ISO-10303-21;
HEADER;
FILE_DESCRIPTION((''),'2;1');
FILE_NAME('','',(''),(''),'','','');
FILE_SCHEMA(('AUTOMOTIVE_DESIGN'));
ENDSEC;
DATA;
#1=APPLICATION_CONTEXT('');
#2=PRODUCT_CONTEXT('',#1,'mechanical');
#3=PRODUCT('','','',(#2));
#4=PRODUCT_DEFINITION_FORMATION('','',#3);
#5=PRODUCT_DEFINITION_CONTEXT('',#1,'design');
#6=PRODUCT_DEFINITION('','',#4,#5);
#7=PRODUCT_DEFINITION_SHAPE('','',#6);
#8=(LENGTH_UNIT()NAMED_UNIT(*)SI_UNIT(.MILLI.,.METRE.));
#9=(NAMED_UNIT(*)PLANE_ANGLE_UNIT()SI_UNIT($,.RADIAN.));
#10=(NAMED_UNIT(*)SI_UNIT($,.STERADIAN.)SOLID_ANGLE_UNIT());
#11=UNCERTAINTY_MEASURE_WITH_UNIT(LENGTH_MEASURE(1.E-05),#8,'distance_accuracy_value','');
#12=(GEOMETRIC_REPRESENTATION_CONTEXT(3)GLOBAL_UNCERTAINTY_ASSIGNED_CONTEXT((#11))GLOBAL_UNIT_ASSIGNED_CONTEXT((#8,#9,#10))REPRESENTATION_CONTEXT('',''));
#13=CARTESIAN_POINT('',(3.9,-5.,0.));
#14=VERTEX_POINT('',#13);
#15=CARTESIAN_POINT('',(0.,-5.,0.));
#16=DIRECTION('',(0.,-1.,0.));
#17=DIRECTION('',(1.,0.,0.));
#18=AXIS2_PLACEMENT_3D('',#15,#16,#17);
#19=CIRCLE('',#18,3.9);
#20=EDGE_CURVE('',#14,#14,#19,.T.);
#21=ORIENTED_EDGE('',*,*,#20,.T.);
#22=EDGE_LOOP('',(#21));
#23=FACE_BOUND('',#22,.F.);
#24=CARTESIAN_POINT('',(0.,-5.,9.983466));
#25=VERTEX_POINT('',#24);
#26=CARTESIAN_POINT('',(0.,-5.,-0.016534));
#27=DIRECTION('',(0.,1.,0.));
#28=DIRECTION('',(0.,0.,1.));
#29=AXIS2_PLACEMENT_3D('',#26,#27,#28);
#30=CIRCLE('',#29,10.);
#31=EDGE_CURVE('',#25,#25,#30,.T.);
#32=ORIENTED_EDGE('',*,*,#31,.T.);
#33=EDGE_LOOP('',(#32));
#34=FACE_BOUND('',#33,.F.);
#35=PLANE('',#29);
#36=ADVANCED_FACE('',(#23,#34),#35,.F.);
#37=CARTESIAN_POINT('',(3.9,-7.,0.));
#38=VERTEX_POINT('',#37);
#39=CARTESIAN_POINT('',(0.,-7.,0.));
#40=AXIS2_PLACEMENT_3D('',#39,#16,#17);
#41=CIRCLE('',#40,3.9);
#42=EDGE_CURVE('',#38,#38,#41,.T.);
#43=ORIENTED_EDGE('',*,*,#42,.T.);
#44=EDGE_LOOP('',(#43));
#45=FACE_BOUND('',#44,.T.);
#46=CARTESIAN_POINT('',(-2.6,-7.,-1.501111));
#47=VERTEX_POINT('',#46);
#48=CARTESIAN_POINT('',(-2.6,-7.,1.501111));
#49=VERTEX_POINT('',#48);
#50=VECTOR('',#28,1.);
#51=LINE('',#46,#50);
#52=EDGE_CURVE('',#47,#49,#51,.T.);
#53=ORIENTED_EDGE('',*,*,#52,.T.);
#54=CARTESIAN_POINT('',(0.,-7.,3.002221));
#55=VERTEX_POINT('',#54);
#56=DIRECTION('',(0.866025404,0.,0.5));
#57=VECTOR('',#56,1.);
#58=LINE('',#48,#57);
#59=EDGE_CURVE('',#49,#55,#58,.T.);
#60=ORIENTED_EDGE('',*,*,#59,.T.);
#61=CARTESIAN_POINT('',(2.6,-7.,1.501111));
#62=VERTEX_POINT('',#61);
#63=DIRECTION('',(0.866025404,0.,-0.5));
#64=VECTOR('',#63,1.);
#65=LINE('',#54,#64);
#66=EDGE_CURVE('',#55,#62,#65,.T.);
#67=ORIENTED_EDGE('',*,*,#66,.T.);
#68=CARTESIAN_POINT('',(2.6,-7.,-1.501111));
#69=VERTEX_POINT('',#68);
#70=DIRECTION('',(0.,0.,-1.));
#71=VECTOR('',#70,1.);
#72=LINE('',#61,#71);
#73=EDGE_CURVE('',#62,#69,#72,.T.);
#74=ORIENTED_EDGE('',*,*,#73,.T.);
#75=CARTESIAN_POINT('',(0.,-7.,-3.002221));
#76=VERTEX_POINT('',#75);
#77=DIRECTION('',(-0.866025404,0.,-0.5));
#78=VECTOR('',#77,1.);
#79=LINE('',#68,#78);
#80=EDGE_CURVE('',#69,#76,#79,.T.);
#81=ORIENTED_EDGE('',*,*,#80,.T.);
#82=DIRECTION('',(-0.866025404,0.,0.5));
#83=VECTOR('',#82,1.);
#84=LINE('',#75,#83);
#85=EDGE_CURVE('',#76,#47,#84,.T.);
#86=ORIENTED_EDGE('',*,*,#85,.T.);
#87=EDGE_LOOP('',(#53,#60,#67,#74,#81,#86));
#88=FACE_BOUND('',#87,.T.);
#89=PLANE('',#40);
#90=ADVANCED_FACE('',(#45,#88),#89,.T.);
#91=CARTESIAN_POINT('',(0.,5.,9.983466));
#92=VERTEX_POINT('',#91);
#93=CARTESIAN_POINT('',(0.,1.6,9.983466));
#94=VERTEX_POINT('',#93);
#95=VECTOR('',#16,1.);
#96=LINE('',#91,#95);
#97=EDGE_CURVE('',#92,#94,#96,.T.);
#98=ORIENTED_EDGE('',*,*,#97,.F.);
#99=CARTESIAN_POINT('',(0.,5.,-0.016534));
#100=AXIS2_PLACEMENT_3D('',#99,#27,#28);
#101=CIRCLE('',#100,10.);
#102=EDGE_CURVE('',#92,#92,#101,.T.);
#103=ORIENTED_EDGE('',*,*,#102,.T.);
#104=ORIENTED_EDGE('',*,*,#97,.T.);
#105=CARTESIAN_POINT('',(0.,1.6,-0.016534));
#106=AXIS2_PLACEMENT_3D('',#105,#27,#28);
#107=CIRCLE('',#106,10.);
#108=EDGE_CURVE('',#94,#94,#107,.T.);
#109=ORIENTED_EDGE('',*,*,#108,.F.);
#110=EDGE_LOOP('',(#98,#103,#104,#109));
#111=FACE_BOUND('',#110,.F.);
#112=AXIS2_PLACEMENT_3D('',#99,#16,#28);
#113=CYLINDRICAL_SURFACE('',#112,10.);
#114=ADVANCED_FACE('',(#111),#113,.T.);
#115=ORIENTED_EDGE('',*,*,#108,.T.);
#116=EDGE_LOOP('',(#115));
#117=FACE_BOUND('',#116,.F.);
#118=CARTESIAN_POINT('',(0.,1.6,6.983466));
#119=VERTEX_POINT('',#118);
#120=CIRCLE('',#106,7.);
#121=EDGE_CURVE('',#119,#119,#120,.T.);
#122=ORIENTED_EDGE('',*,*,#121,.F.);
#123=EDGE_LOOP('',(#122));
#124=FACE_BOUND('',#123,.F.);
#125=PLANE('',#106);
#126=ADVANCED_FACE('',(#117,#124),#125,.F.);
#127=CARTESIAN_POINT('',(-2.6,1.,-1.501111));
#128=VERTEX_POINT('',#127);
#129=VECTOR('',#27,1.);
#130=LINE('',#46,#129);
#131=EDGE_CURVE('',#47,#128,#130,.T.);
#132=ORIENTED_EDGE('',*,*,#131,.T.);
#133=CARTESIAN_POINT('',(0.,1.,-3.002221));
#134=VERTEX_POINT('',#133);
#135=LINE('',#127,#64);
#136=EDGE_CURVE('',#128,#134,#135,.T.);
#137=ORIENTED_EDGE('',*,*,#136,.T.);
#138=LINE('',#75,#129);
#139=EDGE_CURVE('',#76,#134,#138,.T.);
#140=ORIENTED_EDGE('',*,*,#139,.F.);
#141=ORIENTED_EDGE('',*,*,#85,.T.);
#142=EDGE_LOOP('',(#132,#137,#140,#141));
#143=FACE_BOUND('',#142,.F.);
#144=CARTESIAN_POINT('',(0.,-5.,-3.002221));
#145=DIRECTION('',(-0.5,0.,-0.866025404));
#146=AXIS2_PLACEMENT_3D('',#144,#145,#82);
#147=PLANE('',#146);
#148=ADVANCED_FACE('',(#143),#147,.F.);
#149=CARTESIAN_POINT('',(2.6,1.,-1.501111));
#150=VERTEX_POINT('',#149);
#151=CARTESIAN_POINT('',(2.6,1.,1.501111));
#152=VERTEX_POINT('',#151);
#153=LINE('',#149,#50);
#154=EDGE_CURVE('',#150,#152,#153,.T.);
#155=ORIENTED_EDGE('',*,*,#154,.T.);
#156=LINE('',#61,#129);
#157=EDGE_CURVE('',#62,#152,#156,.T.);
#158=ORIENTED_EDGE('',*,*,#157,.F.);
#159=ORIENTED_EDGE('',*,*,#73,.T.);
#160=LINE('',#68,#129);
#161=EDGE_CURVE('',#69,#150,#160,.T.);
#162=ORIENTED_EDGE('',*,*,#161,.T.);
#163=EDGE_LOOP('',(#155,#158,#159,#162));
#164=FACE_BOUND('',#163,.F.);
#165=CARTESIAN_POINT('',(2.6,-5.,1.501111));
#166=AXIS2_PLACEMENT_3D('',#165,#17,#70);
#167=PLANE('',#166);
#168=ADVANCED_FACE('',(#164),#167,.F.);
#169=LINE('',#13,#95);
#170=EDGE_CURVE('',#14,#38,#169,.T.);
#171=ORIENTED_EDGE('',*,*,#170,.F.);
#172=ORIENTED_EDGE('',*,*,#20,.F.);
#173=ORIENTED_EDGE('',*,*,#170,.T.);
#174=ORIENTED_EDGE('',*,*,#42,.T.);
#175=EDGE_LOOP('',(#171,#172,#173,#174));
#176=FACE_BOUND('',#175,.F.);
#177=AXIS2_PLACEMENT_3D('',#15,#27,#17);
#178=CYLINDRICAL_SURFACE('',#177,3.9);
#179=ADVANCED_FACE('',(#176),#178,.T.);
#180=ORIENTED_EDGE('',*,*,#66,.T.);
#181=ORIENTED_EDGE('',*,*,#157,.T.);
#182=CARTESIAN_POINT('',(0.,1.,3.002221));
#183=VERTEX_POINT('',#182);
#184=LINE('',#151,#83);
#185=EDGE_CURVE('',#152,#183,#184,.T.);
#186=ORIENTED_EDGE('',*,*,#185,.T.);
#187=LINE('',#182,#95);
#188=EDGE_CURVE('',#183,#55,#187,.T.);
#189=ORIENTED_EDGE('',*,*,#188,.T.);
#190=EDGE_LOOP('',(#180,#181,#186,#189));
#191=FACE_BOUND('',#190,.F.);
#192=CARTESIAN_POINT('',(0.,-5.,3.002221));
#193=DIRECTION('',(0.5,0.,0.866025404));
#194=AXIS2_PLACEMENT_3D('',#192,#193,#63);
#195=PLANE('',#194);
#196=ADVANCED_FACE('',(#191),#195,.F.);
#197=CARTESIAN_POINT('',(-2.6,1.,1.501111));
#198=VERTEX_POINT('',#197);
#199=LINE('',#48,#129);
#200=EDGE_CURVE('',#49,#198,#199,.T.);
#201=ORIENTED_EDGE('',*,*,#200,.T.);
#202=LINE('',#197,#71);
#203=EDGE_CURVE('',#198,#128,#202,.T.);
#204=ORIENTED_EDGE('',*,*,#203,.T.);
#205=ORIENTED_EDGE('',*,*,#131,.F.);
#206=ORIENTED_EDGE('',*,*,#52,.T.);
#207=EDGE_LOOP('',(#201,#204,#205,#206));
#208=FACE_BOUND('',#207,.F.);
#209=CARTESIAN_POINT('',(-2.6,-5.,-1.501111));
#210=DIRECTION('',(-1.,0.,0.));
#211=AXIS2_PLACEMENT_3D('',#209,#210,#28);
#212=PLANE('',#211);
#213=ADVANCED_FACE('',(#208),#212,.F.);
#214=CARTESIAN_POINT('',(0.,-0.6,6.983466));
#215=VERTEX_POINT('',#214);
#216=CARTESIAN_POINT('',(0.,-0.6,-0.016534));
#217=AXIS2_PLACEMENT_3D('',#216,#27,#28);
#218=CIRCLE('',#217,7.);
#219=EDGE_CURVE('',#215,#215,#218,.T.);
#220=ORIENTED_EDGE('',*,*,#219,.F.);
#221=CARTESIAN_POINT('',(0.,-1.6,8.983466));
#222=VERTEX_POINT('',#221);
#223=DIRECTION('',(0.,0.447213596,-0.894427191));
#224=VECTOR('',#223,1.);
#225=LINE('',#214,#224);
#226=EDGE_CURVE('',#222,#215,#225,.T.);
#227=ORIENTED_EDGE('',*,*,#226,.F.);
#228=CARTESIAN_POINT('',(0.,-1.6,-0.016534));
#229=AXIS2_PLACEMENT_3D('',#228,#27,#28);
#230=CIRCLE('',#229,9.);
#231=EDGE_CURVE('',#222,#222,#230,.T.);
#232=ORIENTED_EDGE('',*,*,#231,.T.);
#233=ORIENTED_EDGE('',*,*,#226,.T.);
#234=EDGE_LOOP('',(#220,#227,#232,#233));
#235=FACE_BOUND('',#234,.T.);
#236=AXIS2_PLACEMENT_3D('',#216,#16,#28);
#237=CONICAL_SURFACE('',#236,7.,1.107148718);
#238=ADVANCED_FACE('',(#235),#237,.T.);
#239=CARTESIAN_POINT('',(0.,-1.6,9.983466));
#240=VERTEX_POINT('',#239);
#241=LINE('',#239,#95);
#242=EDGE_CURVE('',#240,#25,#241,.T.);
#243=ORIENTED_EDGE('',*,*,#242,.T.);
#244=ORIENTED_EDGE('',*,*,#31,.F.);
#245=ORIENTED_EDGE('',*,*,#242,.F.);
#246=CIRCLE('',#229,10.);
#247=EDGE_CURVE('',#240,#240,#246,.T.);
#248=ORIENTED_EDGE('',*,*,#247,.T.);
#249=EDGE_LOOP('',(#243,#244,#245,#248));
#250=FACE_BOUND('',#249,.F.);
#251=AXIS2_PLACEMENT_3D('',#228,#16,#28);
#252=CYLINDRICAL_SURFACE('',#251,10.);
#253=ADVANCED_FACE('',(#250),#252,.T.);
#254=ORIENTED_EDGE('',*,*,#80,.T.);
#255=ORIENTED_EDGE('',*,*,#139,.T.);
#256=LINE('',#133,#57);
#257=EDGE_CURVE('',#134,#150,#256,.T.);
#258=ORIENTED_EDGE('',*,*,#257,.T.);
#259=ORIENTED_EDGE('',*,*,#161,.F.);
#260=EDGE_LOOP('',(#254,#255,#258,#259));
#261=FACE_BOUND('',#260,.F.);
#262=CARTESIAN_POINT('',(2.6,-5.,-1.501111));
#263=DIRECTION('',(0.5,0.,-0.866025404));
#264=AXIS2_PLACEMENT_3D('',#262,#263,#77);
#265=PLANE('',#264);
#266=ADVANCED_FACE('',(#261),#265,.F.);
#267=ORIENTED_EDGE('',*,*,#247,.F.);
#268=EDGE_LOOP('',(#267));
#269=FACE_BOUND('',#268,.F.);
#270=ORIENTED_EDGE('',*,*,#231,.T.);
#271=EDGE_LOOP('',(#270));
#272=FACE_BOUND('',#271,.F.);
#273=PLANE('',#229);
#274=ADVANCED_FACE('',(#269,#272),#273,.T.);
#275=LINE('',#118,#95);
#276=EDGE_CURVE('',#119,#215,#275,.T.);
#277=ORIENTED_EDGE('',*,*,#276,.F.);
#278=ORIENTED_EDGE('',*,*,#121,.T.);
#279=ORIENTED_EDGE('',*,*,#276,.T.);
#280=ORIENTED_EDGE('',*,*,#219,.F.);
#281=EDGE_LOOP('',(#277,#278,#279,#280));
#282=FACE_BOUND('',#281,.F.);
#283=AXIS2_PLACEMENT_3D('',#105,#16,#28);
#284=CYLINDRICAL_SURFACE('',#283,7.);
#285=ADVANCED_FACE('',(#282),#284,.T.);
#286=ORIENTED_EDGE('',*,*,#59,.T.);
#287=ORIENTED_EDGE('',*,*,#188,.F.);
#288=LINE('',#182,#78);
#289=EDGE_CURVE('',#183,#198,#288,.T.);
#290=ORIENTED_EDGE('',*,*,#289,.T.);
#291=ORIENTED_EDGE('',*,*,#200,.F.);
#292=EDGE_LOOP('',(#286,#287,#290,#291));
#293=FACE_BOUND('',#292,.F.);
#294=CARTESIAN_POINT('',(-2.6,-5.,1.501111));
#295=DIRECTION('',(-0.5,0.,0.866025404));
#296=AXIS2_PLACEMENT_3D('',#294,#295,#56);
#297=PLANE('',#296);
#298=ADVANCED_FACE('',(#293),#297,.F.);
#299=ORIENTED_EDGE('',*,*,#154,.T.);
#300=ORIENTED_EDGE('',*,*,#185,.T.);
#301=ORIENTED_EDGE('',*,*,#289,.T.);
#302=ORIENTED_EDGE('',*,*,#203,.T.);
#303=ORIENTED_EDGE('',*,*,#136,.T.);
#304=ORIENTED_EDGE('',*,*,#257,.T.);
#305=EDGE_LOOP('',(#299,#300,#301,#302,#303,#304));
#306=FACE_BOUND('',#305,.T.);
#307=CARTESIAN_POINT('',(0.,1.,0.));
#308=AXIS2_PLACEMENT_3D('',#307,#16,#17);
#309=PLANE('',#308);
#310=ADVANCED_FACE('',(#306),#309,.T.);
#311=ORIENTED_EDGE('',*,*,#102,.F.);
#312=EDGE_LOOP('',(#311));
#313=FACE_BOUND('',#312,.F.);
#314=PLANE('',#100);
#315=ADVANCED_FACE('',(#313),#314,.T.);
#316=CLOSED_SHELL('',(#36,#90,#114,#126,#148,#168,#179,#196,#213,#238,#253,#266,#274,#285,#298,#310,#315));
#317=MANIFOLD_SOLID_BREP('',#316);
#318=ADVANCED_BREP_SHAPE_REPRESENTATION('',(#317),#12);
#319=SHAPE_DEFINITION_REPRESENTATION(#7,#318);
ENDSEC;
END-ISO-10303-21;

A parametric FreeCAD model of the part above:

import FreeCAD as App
import Part
import Sketcher
Q = App.Units.Quantity


def edges_at(feature, points):
    """Names of the edges that pass closest to the given points."""
    edges = feature.Shape.Edges
    near = lambda p: min(range(len(edges)), key=lambda i: edges[i].distToShape(Part.Vertex(*p))[0])
    return sorted({f"Edge{near(p) + 1}" for p in points})

doc = App.newDocument("Part")
params = doc.addObject("Spreadsheet::Sheet", "Params")
for row, (alias, value) in enumerate([
    ("sketch1_width", "10 mm"),
    ("sketch1_height", "3 mm"),
    ("sketch1_width2", "3.2 mm"),
    ("revolution_angle", "360 deg"),
    ("pocket1_length", "6 mm"),
    ("chamfer_size", "2 mm"),
    ("chamfer_size2", "1 mm"),
    ("sketch3_diameter", "7.8 mm"),
    ("pad1_length", "2 mm"),
], start=1):
    params.set(f"A{row}", alias)
    params.set(f"B{row}", "=" + value)
    params.setAlias(f"B{row}", alias)

body = doc.addObject("PartDesign::Body", "Body")

sketch1 = doc.addObject("Sketcher::SketchObject", "Sketch")
body.addObject(sketch1)
sketch1.AttachmentSupport = (doc.YZ_Plane, [""])
sketch1.MapMode = "FlatFace"
sketch1.addGeometry([
    Part.LineSegment(App.Vector(1.6, 6.983466, 0), App.Vector(-1.6, 6.983466, 0)),
    Part.LineSegment(App.Vector(-1.6, 6.983466, 0), App.Vector(-1.6, 9.983466, 0)),
    Part.LineSegment(App.Vector(-1.6, 9.983466, 0), App.Vector(-5, 9.983466, 0)),
    Part.LineSegment(App.Vector(-5, 9.983466, 0), App.Vector(-5, -0.016534, 0)),
    Part.LineSegment(App.Vector(-5, -0.016534, 0), App.Vector(5, -0.016534, 0)),
    Part.LineSegment(App.Vector(5, -0.016534, 0), App.Vector(5, 9.983466, 0)),
    Part.LineSegment(App.Vector(5, 9.983466, 0), App.Vector(1.6, 9.983466, 0)),
    Part.LineSegment(App.Vector(1.6, 9.983466, 0), App.Vector(1.6, 6.983466, 0)),
], False)
sketch1.addGeometry(Part.LineSegment(App.Vector(-5, -0.016534, 0), App.Vector(5, -0.016534, 0)), True)
sketch1.addConstraint([
    Sketcher.Constraint("Coincident", 0, 2, 1, 1),
    Sketcher.Constraint("Coincident", 1, 2, 2, 1),
    Sketcher.Constraint("Coincident", 2, 2, 3, 1),
    Sketcher.Constraint("Coincident", 3, 2, 4, 1),
    Sketcher.Constraint("Coincident", 4, 2, 5, 1),
    Sketcher.Constraint("Coincident", 5, 2, 6, 1),
    Sketcher.Constraint("Coincident", 6, 2, 7, 1),
    Sketcher.Constraint("Coincident", 7, 2, 0, 1),
    Sketcher.Constraint("Horizontal", 0),
    Sketcher.Constraint("Vertical", 1),
    Sketcher.Constraint("Horizontal", 2),
    Sketcher.Constraint("Vertical", 3),
    Sketcher.Constraint("Horizontal", 4),
    Sketcher.Constraint("Vertical", 5),
    Sketcher.Constraint("Horizontal", 6),
    Sketcher.Constraint("Vertical", 7),
    Sketcher.Constraint("Horizontal", 8),
    Sketcher.Constraint("Coincident", 8, 1, 3, 2),
    Sketcher.Constraint("Symmetric", 2, 2, 5, 2, -2),
    Sketcher.Constraint("Vertical", 5, 2, 8, 2),
    Sketcher.Constraint("Equal", 2, 6),
    Sketcher.Constraint("Equal", 8, 3),
    Sketcher.Constraint("DistanceX", 4, 1, 4, 2, Q("10 mm")),
    Sketcher.Constraint("DistanceY", 1, 1, 1, 2, Q("3 mm")),
    Sketcher.Constraint("DistanceX", 0, 2, 0, 1, Q("3.2 mm")),
    Sketcher.Constraint("DistanceY", -1, 1, 0, 2, Q("6.983466 mm")),
])
sketch1.setExpression("Constraints[22]", "Params.sketch1_width")
sketch1.setExpression("Constraints[23]", "Params.sketch1_height")
sketch1.setExpression("Constraints[24]", "Params.sketch1_width2")
revolution = doc.addObject("PartDesign::Revolution", "Revolution")
body.addObject(revolution)
revolution.Profile = sketch1
revolution.ReferenceAxis = (sketch1, ["Axis0"])
revolution.setExpression("Angle", "Params.revolution_angle")

sketch2 = doc.addObject("Sketcher::SketchObject", "Sketch001")
body.addObject(sketch2)
sketch2.AttachmentSupport = (doc.XZ_Plane, [""])
sketch2.MapMode = "FlatFace"
sketch2.AttachmentOffset = App.Placement(App.Vector(0, 0, 5), App.Rotation())
sketch2.addGeometry([
    Part.LineSegment(App.Vector(2.6, -1.501111, 0), App.Vector(2.6, 1.501111, 0)),
    Part.LineSegment(App.Vector(2.6, 1.501111, 0), App.Vector(0, 3.002221, 0)),
    Part.LineSegment(App.Vector(0, 3.002221, 0), App.Vector(-2.6, 1.501111, 0)),
    Part.LineSegment(App.Vector(-2.6, 1.501111, 0), App.Vector(-2.6, -1.501111, 0)),
    Part.LineSegment(App.Vector(-2.6, -1.501111, 0), App.Vector(0, -3.002221, 0)),
    Part.LineSegment(App.Vector(0, -3.002221, 0), App.Vector(2.6, -1.501111, 0)),
], False)
sketch2.addConstraint([
    Sketcher.Constraint("Coincident", 0, 2, 1, 1),
    Sketcher.Constraint("Coincident", 1, 2, 2, 1),
    Sketcher.Constraint("Coincident", 2, 2, 3, 1),
    Sketcher.Constraint("Coincident", 3, 2, 4, 1),
    Sketcher.Constraint("Coincident", 4, 2, 5, 1),
    Sketcher.Constraint("Coincident", 5, 2, 0, 1),
    Sketcher.Constraint("Vertical", 0),
    Sketcher.Constraint("Vertical", 3),
    Sketcher.Constraint("Symmetric", 0, 2, 3, 2, -1, 1),
    Sketcher.Constraint("Symmetric", 1, 2, 4, 2, -1, 1),
    Sketcher.Constraint("PointOnObject", 1, 2, -2),
    Sketcher.Constraint("Parallel", 2, 5),
    Sketcher.Constraint("Horizontal", 0, 2, 2, 2),
    Sketcher.Constraint("Angle", 1, Q("150 deg")),
    Sketcher.Constraint("DistanceX", -1, 1, 0, 2, Q("2.6 mm")),
    Sketcher.Constraint("DistanceY", 0, 1, 0, 2, Q("3.002221 mm")),
])
pocket1 = doc.addObject("PartDesign::Pocket", "Pocket")
body.addObject(pocket1)
pocket1.Profile = sketch2
pocket1.setExpression("Length", "Params.pocket1_length")
doc.recompute()

chamfer = doc.addObject("PartDesign::Chamfer", "Chamfer")
body.addObject(chamfer)
chamfer.Base = (pocket1, edges_at(pocket1, [(0, -1.6, -7.017)]))
chamfer.ChamferType = "Two distances"
chamfer.setExpression("Size", "Params.chamfer_size")
chamfer.setExpression("Size2", "Params.chamfer_size2")
chamfer.FlipDirection = True

sketch3 = doc.addObject("Sketcher::SketchObject", "Sketch002")
body.addObject(sketch3)
sketch3.AttachmentSupport = (doc.XZ_Plane, [""])
sketch3.MapMode = "FlatFace"
sketch3.AttachmentOffset = App.Placement(App.Vector(0, 0, 5), App.Rotation())
sketch3.addGeometry([
    Part.Circle(App.Vector(0, 0, 0), App.Vector(0, 0, 1), 3.9),
    Part.LineSegment(App.Vector(-2.6, 1.501111, 0), App.Vector(0, 3.002221, 0)),
    Part.LineSegment(App.Vector(0, 3.002221, 0), App.Vector(2.6, 1.501111, 0)),
    Part.LineSegment(App.Vector(2.6, 1.501111, 0), App.Vector(2.6, -1.501111, 0)),
    Part.LineSegment(App.Vector(2.6, -1.501111, 0), App.Vector(0, -3.002221, 0)),
    Part.LineSegment(App.Vector(0, -3.002221, 0), App.Vector(-2.6, -1.501111, 0)),
    Part.LineSegment(App.Vector(-2.6, -1.501111, 0), App.Vector(-2.6, 1.501111, 0)),
], False)
sketch3.addConstraint([
    Sketcher.Constraint("Coincident", 1, 2, 2, 1),
    Sketcher.Constraint("Coincident", 2, 2, 3, 1),
    Sketcher.Constraint("Coincident", 3, 2, 4, 1),
    Sketcher.Constraint("Coincident", 4, 2, 5, 1),
    Sketcher.Constraint("Coincident", 5, 2, 6, 1),
    Sketcher.Constraint("Coincident", 6, 2, 1, 1),
    Sketcher.Constraint("Vertical", 3),
    Sketcher.Constraint("Vertical", 6),
    Sketcher.Constraint("Coincident", 0, 3, -1, 1),
    Sketcher.Constraint("Symmetric", 1, 2, 4, 2, -1, 1),
    Sketcher.Constraint("Symmetric", 2, 2, 5, 2, -1, 1),
    Sketcher.Constraint("PointOnObject", 1, 2, -2),
    Sketcher.Constraint("Parallel", 1, 4),
    Sketcher.Constraint("Horizontal", 3, 2, 5, 2),
    Sketcher.Constraint("Diameter", 0, Q("7.8 mm")),
    Sketcher.Constraint("Angle", 1, Q("30 deg")),
    Sketcher.Constraint("DistanceX", -1, 1, 2, 2, Q("2.6 mm")),
    Sketcher.Constraint("DistanceY", 3, 2, 3, 1, Q("3.002221 mm")),
])
sketch3.setExpression("Constraints[14]", "Params.sketch3_diameter")
pad1 = doc.addObject("PartDesign::Pad", "Pad")
body.addObject(pad1)
pad1.Profile = sketch3
pad1.setExpression("Length", "Params.pad1_length")

doc.recompute()
